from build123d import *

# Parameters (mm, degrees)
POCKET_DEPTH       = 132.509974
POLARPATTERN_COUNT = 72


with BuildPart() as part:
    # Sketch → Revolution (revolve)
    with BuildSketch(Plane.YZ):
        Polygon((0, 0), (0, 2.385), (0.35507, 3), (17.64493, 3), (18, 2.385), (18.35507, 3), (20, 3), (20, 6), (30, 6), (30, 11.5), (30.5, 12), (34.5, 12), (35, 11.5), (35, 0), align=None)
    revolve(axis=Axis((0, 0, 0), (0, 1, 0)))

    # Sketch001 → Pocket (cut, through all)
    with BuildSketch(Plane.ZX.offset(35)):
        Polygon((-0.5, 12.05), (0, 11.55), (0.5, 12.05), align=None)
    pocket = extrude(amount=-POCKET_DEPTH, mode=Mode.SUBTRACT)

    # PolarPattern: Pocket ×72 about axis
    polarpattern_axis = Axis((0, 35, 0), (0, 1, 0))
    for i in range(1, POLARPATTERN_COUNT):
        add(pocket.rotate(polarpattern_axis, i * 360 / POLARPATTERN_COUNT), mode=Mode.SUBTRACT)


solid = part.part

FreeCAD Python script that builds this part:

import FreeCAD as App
import Part
import Sketcher

V = App.Vector
Q = App.Units.Quantity


def add_polygon(sketch, points):
    """Adds a closed chain of lines whose ends are joined by coincident constraints."""
    first, n = sketch.GeometryCount, len(points)
    for a, b in zip(points, points[1:] + points[:1]):
        sketch.addGeometry(Part.LineSegment(App.Vector(*a, 0), App.Vector(*b, 0)), False)
    for i in range(n):
        sketch.addConstraint(Sketcher.Constraint("Coincident", first + i, 2, first + (i + 1) % n, 1))

doc = App.newDocument("Part")
body = doc.addObject("PartDesign::Body", "Body")

# Sketch on YZ plane
sketch1 = body.newObject("Sketcher::SketchObject", "Sketch")
sketch1.AttachmentSupport = (doc.getObject("YZ_Plane"), [""])
sketch1.MapMode = "FlatFace"
add_polygon(sketch1, [(0, 2.385), (0, 0), (35, 0), (35, 11.5), (34.5, 12), (30.5, 12), (30, 11.5), (30, 6), (20, 6), (20, 3), (18.35507, 3), (18, 2.385), (17.64493, 3), (0.35507, 3)])  # lines 0-13
sketch1.addConstraint([
    Sketcher.Constraint("Vertical", 0),
    Sketcher.Constraint("Horizontal", 1),
    Sketcher.Constraint("Vertical", 2),
    Sketcher.Constraint("Horizontal", 4),
    Sketcher.Constraint("Vertical", 6),
    Sketcher.Constraint("Horizontal", 7),
    Sketcher.Constraint("Vertical", 8),
    Sketcher.Constraint("Horizontal", 9),
    Sketcher.Constraint("Horizontal", 12),
    Sketcher.Constraint("Coincident", 0, 2, -1, 1),
    Sketcher.Constraint("Perpendicular", 3, 5),
    Sketcher.Constraint("Parallel", 10, 13),
    Sketcher.Constraint("Horizontal", 2, 2, 5, 2),
    Sketcher.Constraint("Horizontal", 9, 2, 11, 2),
    Sketcher.Constraint("Horizontal", 10, 2, 13, 2),
    Sketcher.Constraint("Equal", 3, 5),
    Sketcher.Constraint("Equal", 10, 11),
    Sketcher.Constraint("DistanceX", 1, 1, 1, 2, Q("35 mm")),
    Sketcher.Constraint("DistanceX", 4, 2, 4, 1, Q("4 mm")),
    Sketcher.Constraint("DistanceX", 7, 2, 7, 1, Q("10 mm")),
    Sketcher.Constraint("DistanceY", 8, 2, 8, 1, Q("3 mm")),
    Sketcher.Constraint("DistanceY", 2, 1, 2, 2, Q("11.5 mm")),
    Sketcher.Constraint("DistanceY", 6, 2, 6, 1, Q("5.5 mm")),
    Sketcher.Constraint("DistanceY", -1, 1, 3, 2, Q("12 mm")),
    Sketcher.Constraint("DistanceX", -1, 1, 10, 2, Q("18 mm")),
    Sketcher.Constraint("DistanceY", 0, 2, 0, 1, Q("2.385 mm")),
    Sketcher.Constraint("DistanceX", 9, 2, 9, 1, Q("1.64493 mm")),
])
revolution = body.newObject("PartDesign::Revolution", "Revolution")
revolution.Profile = sketch1
revolution.ReferenceAxis = (sketch1, ["H_Axis"])
revolution.Angle = 360

# Sketch on XZ plane
sketch2 = body.newObject("Sketcher::SketchObject", "Sketch001")
sketch2.AttachmentSupport = (doc.getObject("XZ_Plane"), [""])
sketch2.MapMode = "FlatFace"
sketch2.AttachmentOffset = App.Placement(V(0, 0, -35), App.Rotation())
add_polygon(sketch2, [(12.05, -0.5), (11.55, 0), (12.05, 0.5)])  # lines 0-2
sketch2.addConstraint([
    Sketcher.Constraint("Vertical", 2),
    Sketcher.Constraint("PointOnObject", 0, 2, -1),
    Sketcher.Constraint("Perpendicular", 0, 1),
    Sketcher.Constraint("Equal", 0, 1),
    Sketcher.Constraint("DistanceY", 2, 2, 2, 1, Q("1 mm")),
    Sketcher.Constraint("DistanceX", -1, 1, 0, 2, Q("11.55 mm")),
])
pocket1 = body.newObject("PartDesign::Pocket", "Pocket")
pocket1.Profile = sketch2
pocket1.Type = "ThroughAll"
pocket1.Reversed = True
doc.recompute()

polarpattern = body.newObject("PartDesign::PolarPattern", "PolarPattern")
polarpattern.Originals = [pocket1]
polarpattern.Axis = (doc.getObject("Y_Axis"), [""])
polarpattern.Angle = 360
polarpattern.Occurrences = 72
body.Tip = polarpattern

doc.recompute()
